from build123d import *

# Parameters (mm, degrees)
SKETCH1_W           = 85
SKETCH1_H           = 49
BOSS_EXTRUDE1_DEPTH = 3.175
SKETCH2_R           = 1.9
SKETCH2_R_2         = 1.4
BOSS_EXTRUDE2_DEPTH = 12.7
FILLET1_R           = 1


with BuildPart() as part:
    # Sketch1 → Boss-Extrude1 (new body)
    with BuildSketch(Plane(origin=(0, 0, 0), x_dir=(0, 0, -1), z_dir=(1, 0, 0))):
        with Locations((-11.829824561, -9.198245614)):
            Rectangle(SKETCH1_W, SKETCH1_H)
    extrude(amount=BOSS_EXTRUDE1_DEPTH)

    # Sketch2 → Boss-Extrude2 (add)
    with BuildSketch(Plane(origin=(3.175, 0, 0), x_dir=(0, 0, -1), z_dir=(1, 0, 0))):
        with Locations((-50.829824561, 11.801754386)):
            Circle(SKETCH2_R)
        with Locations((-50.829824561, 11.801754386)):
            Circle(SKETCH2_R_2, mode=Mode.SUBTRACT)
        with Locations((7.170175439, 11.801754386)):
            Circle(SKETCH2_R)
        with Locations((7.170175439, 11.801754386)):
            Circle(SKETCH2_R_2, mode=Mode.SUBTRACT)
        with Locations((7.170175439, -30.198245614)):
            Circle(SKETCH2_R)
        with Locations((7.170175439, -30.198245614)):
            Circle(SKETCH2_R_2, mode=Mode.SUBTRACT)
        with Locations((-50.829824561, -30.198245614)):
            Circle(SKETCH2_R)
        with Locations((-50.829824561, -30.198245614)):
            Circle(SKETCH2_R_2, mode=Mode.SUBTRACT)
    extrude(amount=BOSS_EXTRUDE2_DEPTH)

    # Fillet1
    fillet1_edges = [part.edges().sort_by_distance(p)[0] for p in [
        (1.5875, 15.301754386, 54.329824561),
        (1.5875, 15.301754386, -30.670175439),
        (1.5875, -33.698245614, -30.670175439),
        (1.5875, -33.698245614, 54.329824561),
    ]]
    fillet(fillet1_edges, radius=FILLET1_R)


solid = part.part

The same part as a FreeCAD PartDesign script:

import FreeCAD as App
import Part
import Sketcher
Q = App.Units.Quantity


def edges_at(feature, points):
    """Names of the edges that pass closest to the given points."""
    edges = feature.Shape.Edges
    near = lambda p: min(range(len(edges)), key=lambda i: edges[i].distToShape(Part.Vertex(*p))[0])
    return sorted({f"Edge{near(p) + 1}" for p in points})

doc = App.newDocument("Part")
params = doc.addObject("Spreadsheet::Sheet", "Params")
for row, (alias, value) in enumerate([
    ("sketch1_width", "49 mm"),
    ("sketch1_height", "85 mm"),
    ("pad1_length", "3.175 mm"),
    ("sketch2_diameter", "3.8 mm"),
    ("sketch2_diameter2", "2.8 mm"),
    ("pad2_length", "12.7 mm"),
    ("fillet_radius", "1 mm"),
], start=1):
    params.set(f"A{row}", alias)
    params.set(f"B{row}", "=" + value)
    params.setAlias(f"B{row}", alias)

body = doc.addObject("PartDesign::Body", "Body")

# Sketch on YZ plane
sketch1 = doc.addObject("Sketcher::SketchObject", "Sketch")
body.addObject(sketch1)
sketch1.AttachmentSupport = (doc.YZ_Plane, [""])
sketch1.MapMode = "FlatFace"
sketch1.addGeometry(Part.LineSegment(App.Vector(15.301754, 54.329825, 0), App.Vector(-33.698246, 54.329825, 0)), False)
sketch1.addGeometry(Part.LineSegment(App.Vector(-33.698246, 54.329825, 0), App.Vector(-33.698246, -30.670175, 0)), False)
sketch1.addGeometry(Part.LineSegment(App.Vector(-33.698246, -30.670175, 0), App.Vector(15.301754, -30.670175, 0)), False)
sketch1.addGeometry(Part.LineSegment(App.Vector(15.301754, -30.670175, 0), App.Vector(15.301754, 54.329825, 0)), False)
sketch1.addConstraint(Sketcher.Constraint("Coincident", 0, 2, 1, 1))
sketch1.addConstraint(Sketcher.Constraint("Coincident", 1, 2, 2, 1))
sketch1.addConstraint(Sketcher.Constraint("Coincident", 2, 2, 3, 1))
sketch1.addConstraint(Sketcher.Constraint("Coincident", 3, 2, 0, 1))
sketch1.addConstraint(Sketcher.Constraint("Horizontal", 0))
sketch1.addConstraint(Sketcher.Constraint("Vertical", 1))
sketch1.addConstraint(Sketcher.Constraint("Horizontal", 2))
sketch1.addConstraint(Sketcher.Constraint("Vertical", 3))
sketch1.addConstraint(Sketcher.Constraint("DistanceX", 0, 2, 0, 1, Q("49 mm")))
sketch1.addConstraint(Sketcher.Constraint("DistanceY", 1, 2, 1, 1, Q("85 mm")))
sketch1.addConstraint(Sketcher.Constraint("DistanceX", 0, 2, -1, 1, Q("33.698246 mm")))
sketch1.addConstraint(Sketcher.Constraint("DistanceY", -1, 1, 0, 2, Q("54.329825 mm")))
sketch1.setExpression("Constraints[8]", "Params.sketch1_width")
sketch1.setExpression("Constraints[9]", "Params.sketch1_height")
pad1 = doc.addObject("PartDesign::Pad", "Pad")
body.addObject(pad1)
pad1.Profile = sketch1
pad1.setExpression("Length", "Params.pad1_length")

# Sketch on YZ plane
sketch2 = doc.addObject("Sketcher::SketchObject", "Sketch001")
body.addObject(sketch2)
sketch2.AttachmentSupport = (doc.YZ_Plane, [""])
sketch2.MapMode = "FlatFace"
sketch2.AttachmentOffset = App.Placement(App.Vector(0, 0, 3.175), App.Rotation())
sketch2.addGeometry(Part.Circle(App.Vector(11.801754, 50.829825, 0), App.Vector(0, 0, 1), 1.9), False)
sketch2.addGeometry(Part.Circle(App.Vector(11.801754, 50.829825, 0), App.Vector(0, 0, 1), 1.4), False)
sketch2.addGeometry(Part.Circle(App.Vector(11.801754, -7.170175, 0), App.Vector(0, 0, 1), 1.9), False)
sketch2.addGeometry(Part.Circle(App.Vector(11.801754, -7.170175, 0), App.Vector(0, 0, 1), 1.4), False)
sketch2.addGeometry(Part.Circle(App.Vector(-30.198246, -7.170175, 0), App.Vector(0, 0, 1), 1.9), False)
sketch2.addGeometry(Part.Circle(App.Vector(-30.198246, -7.170175, 0), App.Vector(0, 0, 1), 1.4), False)
sketch2.addGeometry(Part.Circle(App.Vector(-30.198246, 50.829825, 0), App.Vector(0, 0, 1), 1.9), False)
sketch2.addGeometry(Part.Circle(App.Vector(-30.198246, 50.829825, 0), App.Vector(0, 0, 1), 1.4), False)
sketch2.addConstraint(Sketcher.Constraint("Coincident", 1, 3, 0, 3))
sketch2.addConstraint(Sketcher.Constraint("Coincident", 3, 3, 2, 3))
sketch2.addConstraint(Sketcher.Constraint("Coincident", 5, 3, 4, 3))
sketch2.addConstraint(Sketcher.Constraint("Coincident", 7, 3, 6, 3))
sketch2.addConstraint(Sketcher.Constraint("Equal", 0, 2))
sketch2.addConstraint(Sketcher.Constraint("Equal", 1, 3))
sketch2.addConstraint(Sketcher.Constraint("Equal", 2, 4))
sketch2.addConstraint(Sketcher.Constraint("Equal", 3, 5))
sketch2.addConstraint(Sketcher.Constraint("Equal", 4, 6))
sketch2.addConstraint(Sketcher.Constraint("Equal", 5, 7))
sketch2.addConstraint(Sketcher.Constraint("Horizontal", 3, 3, 4, 3))
sketch2.addConstraint(Sketcher.Constraint("Horizontal", 1, 3, 6, 3))
sketch2.addConstraint(Sketcher.Constraint("Vertical", 1, 3, 2, 3))
sketch2.addConstraint(Sketcher.Constraint("Vertical", 5, 3, 6, 3))
sketch2.addConstraint(Sketcher.Constraint("Diameter", 0, Q("3.8 mm")))
sketch2.addConstraint(Sketcher.Constraint("Diameter", 1, Q("2.8 mm")))
sketch2.addConstraint(Sketcher.Constraint("DistanceY", 2, 3, 0, 3, Q("58 mm")))
sketch2.addConstraint(Sketcher.Constraint("DistanceX", 4, 3, 2, 3, Q("42 mm")))
sketch2.addConstraint(Sketcher.Constraint("DistanceX", -1, 1, 0, 3, Q("11.801754 mm")))
sketch2.addConstraint(Sketcher.Constraint("DistanceY", -1, 1, 0, 3, Q("50.829825 mm")))
sketch2.setExpression("Constraints[14]", "Params.sketch2_diameter")
sketch2.setExpression("Constraints[15]", "Params.sketch2_diameter2")
pad2 = doc.addObject("PartDesign::Pad", "Pad001")
body.addObject(pad2)
pad2.Profile = sketch2
pad2.setExpression("Length", "Params.pad2_length")
doc.recompute()

fillet = doc.addObject("PartDesign::Fillet", "Fillet")
body.addObject(fillet)
fillet.Base = (pad2, edges_at(pad2, [
    (1.587, 15.302, 54.33),
    (1.587, 15.302, -30.67),
    (1.587, -33.698, -30.67),
    (1.587, -33.698, 54.33),
]))
fillet.setExpression("Radius", "Params.fillet_radius")

doc.recompute()
